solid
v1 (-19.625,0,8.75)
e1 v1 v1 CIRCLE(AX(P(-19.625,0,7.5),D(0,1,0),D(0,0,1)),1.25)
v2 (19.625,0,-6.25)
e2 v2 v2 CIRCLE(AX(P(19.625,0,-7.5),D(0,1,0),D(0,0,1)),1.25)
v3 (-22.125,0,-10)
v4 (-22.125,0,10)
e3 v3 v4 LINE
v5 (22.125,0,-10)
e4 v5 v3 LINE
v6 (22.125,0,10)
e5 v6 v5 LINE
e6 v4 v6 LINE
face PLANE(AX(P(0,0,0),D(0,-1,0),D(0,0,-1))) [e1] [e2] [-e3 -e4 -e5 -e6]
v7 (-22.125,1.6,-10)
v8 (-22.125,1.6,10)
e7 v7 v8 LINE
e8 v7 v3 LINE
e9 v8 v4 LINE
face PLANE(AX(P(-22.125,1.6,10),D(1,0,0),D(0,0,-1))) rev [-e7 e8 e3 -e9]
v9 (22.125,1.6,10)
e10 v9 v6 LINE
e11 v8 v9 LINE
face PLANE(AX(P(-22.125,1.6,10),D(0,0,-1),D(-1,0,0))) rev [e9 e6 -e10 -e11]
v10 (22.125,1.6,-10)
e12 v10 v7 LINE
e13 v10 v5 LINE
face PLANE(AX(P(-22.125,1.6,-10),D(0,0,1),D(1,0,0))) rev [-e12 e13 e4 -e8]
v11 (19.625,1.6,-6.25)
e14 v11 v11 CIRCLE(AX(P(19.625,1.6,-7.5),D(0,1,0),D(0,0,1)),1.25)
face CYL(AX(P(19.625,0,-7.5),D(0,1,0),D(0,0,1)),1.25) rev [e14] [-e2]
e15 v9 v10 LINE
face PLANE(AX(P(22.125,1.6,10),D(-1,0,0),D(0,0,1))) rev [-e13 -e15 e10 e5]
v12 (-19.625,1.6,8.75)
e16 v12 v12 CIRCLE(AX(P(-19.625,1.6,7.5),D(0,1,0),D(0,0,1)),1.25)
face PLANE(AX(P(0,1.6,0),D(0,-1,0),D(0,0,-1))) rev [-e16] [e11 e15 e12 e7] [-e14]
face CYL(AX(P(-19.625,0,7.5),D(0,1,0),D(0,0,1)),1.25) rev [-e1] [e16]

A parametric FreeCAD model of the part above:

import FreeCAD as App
import Part
import Sketcher
from FreeCAD import Vector
Q = App.Units.Quantity


def add_polygon(sketch, points):
    """Adds a closed chain of lines whose ends are joined by coincident constraints."""
    first, n = sketch.GeometryCount, len(points)
    for a, b in zip(points, points[1:] + points[:1]):
        sketch.addGeometry(Part.LineSegment(App.Vector(*a, 0), App.Vector(*b, 0)), False)
    for i in range(n):
        sketch.addConstraint(Sketcher.Constraint("Coincident", first + i, 2, first + (i + 1) % n, 1))

doc = App.newDocument("Part")
body = doc.addObject("PartDesign::Body", "Body")

# Sketch on XZ plane
sketch1 = body.newObject("Sketcher::SketchObject", "Sketch")
sketch1.AttachmentSupport = (doc.getObject("XZ_Plane"), [""])
sketch1.MapMode = "FlatFace"
add_polygon(sketch1, [(-22.125, -10), (-22.125, 10), (22.125, 10), (22.125, -10)])  # lines 0-3
sketch1.addConstraint(Sketcher.Constraint("Vertical", 0))
sketch1.addConstraint(Sketcher.Constraint("Horizontal", 1))
sketch1.addConstraint(Sketcher.Constraint("Vertical", 2))
sketch1.addConstraint(Sketcher.Constraint("Horizontal", 3))
sketch1.addConstraint(Sketcher.Constraint("Symmetric", 0, 2, 2, 2, -1, 1))
sketch1.addConstraint(Sketcher.Constraint("DistanceY", 0, 1, 0, 2, Q("20 mm")))
sketch1.addConstraint(Sketcher.Constraint("DistanceX", 1, 1, 1, 2, Q("44.25 mm")))
pad1 = body.newObject("PartDesign::Pad", "Pad")
pad1.Profile = sketch1
pad1.Length = 1.6
pad1.Reversed = True

# Sketch on XZ plane
sketch2 = body.newObject("Sketcher::SketchObject", "Sketch001")
sketch2.AttachmentSupport = (doc.getObject("XZ_Plane"), [""])
sketch2.MapMode = "FlatFace"
sketch2.AttachmentOffset = App.Placement(Vector(0, 0, -1.6), App.Rotation())
sketch2.addGeometry(Part.Circle(Vector(-19.625, 7.5, 0), Vector(0, 0, 1), 1.25), False)
sketch2.addGeometry(Part.Circle(Vector(19.625, -7.5, 0), Vector(0, 0, 1), 1.25), False)
sketch2.addConstraint(Sketcher.Constraint("Equal", 0, 1))
sketch2.addConstraint(Sketcher.Constraint("Symmetric", 0, 3, 1, 3, -1, 1))
sketch2.addConstraint(Sketcher.Constraint("Diameter", 0, Q("2.5 mm")))
sketch2.addConstraint(Sketcher.Constraint("DistanceY", 1, 3, 0, 3, Q("15 mm")))
sketch2.addConstraint(Sketcher.Constraint("DistanceX", 0, 3, 1, 3, Q("39.25 mm")))
pocket1 = body.newObject("PartDesign::Pocket", "Pocket")
pocket1.Profile = sketch2
pocket1.Type = "ThroughAll"
pocket1.Reversed = True

doc.recompute()
